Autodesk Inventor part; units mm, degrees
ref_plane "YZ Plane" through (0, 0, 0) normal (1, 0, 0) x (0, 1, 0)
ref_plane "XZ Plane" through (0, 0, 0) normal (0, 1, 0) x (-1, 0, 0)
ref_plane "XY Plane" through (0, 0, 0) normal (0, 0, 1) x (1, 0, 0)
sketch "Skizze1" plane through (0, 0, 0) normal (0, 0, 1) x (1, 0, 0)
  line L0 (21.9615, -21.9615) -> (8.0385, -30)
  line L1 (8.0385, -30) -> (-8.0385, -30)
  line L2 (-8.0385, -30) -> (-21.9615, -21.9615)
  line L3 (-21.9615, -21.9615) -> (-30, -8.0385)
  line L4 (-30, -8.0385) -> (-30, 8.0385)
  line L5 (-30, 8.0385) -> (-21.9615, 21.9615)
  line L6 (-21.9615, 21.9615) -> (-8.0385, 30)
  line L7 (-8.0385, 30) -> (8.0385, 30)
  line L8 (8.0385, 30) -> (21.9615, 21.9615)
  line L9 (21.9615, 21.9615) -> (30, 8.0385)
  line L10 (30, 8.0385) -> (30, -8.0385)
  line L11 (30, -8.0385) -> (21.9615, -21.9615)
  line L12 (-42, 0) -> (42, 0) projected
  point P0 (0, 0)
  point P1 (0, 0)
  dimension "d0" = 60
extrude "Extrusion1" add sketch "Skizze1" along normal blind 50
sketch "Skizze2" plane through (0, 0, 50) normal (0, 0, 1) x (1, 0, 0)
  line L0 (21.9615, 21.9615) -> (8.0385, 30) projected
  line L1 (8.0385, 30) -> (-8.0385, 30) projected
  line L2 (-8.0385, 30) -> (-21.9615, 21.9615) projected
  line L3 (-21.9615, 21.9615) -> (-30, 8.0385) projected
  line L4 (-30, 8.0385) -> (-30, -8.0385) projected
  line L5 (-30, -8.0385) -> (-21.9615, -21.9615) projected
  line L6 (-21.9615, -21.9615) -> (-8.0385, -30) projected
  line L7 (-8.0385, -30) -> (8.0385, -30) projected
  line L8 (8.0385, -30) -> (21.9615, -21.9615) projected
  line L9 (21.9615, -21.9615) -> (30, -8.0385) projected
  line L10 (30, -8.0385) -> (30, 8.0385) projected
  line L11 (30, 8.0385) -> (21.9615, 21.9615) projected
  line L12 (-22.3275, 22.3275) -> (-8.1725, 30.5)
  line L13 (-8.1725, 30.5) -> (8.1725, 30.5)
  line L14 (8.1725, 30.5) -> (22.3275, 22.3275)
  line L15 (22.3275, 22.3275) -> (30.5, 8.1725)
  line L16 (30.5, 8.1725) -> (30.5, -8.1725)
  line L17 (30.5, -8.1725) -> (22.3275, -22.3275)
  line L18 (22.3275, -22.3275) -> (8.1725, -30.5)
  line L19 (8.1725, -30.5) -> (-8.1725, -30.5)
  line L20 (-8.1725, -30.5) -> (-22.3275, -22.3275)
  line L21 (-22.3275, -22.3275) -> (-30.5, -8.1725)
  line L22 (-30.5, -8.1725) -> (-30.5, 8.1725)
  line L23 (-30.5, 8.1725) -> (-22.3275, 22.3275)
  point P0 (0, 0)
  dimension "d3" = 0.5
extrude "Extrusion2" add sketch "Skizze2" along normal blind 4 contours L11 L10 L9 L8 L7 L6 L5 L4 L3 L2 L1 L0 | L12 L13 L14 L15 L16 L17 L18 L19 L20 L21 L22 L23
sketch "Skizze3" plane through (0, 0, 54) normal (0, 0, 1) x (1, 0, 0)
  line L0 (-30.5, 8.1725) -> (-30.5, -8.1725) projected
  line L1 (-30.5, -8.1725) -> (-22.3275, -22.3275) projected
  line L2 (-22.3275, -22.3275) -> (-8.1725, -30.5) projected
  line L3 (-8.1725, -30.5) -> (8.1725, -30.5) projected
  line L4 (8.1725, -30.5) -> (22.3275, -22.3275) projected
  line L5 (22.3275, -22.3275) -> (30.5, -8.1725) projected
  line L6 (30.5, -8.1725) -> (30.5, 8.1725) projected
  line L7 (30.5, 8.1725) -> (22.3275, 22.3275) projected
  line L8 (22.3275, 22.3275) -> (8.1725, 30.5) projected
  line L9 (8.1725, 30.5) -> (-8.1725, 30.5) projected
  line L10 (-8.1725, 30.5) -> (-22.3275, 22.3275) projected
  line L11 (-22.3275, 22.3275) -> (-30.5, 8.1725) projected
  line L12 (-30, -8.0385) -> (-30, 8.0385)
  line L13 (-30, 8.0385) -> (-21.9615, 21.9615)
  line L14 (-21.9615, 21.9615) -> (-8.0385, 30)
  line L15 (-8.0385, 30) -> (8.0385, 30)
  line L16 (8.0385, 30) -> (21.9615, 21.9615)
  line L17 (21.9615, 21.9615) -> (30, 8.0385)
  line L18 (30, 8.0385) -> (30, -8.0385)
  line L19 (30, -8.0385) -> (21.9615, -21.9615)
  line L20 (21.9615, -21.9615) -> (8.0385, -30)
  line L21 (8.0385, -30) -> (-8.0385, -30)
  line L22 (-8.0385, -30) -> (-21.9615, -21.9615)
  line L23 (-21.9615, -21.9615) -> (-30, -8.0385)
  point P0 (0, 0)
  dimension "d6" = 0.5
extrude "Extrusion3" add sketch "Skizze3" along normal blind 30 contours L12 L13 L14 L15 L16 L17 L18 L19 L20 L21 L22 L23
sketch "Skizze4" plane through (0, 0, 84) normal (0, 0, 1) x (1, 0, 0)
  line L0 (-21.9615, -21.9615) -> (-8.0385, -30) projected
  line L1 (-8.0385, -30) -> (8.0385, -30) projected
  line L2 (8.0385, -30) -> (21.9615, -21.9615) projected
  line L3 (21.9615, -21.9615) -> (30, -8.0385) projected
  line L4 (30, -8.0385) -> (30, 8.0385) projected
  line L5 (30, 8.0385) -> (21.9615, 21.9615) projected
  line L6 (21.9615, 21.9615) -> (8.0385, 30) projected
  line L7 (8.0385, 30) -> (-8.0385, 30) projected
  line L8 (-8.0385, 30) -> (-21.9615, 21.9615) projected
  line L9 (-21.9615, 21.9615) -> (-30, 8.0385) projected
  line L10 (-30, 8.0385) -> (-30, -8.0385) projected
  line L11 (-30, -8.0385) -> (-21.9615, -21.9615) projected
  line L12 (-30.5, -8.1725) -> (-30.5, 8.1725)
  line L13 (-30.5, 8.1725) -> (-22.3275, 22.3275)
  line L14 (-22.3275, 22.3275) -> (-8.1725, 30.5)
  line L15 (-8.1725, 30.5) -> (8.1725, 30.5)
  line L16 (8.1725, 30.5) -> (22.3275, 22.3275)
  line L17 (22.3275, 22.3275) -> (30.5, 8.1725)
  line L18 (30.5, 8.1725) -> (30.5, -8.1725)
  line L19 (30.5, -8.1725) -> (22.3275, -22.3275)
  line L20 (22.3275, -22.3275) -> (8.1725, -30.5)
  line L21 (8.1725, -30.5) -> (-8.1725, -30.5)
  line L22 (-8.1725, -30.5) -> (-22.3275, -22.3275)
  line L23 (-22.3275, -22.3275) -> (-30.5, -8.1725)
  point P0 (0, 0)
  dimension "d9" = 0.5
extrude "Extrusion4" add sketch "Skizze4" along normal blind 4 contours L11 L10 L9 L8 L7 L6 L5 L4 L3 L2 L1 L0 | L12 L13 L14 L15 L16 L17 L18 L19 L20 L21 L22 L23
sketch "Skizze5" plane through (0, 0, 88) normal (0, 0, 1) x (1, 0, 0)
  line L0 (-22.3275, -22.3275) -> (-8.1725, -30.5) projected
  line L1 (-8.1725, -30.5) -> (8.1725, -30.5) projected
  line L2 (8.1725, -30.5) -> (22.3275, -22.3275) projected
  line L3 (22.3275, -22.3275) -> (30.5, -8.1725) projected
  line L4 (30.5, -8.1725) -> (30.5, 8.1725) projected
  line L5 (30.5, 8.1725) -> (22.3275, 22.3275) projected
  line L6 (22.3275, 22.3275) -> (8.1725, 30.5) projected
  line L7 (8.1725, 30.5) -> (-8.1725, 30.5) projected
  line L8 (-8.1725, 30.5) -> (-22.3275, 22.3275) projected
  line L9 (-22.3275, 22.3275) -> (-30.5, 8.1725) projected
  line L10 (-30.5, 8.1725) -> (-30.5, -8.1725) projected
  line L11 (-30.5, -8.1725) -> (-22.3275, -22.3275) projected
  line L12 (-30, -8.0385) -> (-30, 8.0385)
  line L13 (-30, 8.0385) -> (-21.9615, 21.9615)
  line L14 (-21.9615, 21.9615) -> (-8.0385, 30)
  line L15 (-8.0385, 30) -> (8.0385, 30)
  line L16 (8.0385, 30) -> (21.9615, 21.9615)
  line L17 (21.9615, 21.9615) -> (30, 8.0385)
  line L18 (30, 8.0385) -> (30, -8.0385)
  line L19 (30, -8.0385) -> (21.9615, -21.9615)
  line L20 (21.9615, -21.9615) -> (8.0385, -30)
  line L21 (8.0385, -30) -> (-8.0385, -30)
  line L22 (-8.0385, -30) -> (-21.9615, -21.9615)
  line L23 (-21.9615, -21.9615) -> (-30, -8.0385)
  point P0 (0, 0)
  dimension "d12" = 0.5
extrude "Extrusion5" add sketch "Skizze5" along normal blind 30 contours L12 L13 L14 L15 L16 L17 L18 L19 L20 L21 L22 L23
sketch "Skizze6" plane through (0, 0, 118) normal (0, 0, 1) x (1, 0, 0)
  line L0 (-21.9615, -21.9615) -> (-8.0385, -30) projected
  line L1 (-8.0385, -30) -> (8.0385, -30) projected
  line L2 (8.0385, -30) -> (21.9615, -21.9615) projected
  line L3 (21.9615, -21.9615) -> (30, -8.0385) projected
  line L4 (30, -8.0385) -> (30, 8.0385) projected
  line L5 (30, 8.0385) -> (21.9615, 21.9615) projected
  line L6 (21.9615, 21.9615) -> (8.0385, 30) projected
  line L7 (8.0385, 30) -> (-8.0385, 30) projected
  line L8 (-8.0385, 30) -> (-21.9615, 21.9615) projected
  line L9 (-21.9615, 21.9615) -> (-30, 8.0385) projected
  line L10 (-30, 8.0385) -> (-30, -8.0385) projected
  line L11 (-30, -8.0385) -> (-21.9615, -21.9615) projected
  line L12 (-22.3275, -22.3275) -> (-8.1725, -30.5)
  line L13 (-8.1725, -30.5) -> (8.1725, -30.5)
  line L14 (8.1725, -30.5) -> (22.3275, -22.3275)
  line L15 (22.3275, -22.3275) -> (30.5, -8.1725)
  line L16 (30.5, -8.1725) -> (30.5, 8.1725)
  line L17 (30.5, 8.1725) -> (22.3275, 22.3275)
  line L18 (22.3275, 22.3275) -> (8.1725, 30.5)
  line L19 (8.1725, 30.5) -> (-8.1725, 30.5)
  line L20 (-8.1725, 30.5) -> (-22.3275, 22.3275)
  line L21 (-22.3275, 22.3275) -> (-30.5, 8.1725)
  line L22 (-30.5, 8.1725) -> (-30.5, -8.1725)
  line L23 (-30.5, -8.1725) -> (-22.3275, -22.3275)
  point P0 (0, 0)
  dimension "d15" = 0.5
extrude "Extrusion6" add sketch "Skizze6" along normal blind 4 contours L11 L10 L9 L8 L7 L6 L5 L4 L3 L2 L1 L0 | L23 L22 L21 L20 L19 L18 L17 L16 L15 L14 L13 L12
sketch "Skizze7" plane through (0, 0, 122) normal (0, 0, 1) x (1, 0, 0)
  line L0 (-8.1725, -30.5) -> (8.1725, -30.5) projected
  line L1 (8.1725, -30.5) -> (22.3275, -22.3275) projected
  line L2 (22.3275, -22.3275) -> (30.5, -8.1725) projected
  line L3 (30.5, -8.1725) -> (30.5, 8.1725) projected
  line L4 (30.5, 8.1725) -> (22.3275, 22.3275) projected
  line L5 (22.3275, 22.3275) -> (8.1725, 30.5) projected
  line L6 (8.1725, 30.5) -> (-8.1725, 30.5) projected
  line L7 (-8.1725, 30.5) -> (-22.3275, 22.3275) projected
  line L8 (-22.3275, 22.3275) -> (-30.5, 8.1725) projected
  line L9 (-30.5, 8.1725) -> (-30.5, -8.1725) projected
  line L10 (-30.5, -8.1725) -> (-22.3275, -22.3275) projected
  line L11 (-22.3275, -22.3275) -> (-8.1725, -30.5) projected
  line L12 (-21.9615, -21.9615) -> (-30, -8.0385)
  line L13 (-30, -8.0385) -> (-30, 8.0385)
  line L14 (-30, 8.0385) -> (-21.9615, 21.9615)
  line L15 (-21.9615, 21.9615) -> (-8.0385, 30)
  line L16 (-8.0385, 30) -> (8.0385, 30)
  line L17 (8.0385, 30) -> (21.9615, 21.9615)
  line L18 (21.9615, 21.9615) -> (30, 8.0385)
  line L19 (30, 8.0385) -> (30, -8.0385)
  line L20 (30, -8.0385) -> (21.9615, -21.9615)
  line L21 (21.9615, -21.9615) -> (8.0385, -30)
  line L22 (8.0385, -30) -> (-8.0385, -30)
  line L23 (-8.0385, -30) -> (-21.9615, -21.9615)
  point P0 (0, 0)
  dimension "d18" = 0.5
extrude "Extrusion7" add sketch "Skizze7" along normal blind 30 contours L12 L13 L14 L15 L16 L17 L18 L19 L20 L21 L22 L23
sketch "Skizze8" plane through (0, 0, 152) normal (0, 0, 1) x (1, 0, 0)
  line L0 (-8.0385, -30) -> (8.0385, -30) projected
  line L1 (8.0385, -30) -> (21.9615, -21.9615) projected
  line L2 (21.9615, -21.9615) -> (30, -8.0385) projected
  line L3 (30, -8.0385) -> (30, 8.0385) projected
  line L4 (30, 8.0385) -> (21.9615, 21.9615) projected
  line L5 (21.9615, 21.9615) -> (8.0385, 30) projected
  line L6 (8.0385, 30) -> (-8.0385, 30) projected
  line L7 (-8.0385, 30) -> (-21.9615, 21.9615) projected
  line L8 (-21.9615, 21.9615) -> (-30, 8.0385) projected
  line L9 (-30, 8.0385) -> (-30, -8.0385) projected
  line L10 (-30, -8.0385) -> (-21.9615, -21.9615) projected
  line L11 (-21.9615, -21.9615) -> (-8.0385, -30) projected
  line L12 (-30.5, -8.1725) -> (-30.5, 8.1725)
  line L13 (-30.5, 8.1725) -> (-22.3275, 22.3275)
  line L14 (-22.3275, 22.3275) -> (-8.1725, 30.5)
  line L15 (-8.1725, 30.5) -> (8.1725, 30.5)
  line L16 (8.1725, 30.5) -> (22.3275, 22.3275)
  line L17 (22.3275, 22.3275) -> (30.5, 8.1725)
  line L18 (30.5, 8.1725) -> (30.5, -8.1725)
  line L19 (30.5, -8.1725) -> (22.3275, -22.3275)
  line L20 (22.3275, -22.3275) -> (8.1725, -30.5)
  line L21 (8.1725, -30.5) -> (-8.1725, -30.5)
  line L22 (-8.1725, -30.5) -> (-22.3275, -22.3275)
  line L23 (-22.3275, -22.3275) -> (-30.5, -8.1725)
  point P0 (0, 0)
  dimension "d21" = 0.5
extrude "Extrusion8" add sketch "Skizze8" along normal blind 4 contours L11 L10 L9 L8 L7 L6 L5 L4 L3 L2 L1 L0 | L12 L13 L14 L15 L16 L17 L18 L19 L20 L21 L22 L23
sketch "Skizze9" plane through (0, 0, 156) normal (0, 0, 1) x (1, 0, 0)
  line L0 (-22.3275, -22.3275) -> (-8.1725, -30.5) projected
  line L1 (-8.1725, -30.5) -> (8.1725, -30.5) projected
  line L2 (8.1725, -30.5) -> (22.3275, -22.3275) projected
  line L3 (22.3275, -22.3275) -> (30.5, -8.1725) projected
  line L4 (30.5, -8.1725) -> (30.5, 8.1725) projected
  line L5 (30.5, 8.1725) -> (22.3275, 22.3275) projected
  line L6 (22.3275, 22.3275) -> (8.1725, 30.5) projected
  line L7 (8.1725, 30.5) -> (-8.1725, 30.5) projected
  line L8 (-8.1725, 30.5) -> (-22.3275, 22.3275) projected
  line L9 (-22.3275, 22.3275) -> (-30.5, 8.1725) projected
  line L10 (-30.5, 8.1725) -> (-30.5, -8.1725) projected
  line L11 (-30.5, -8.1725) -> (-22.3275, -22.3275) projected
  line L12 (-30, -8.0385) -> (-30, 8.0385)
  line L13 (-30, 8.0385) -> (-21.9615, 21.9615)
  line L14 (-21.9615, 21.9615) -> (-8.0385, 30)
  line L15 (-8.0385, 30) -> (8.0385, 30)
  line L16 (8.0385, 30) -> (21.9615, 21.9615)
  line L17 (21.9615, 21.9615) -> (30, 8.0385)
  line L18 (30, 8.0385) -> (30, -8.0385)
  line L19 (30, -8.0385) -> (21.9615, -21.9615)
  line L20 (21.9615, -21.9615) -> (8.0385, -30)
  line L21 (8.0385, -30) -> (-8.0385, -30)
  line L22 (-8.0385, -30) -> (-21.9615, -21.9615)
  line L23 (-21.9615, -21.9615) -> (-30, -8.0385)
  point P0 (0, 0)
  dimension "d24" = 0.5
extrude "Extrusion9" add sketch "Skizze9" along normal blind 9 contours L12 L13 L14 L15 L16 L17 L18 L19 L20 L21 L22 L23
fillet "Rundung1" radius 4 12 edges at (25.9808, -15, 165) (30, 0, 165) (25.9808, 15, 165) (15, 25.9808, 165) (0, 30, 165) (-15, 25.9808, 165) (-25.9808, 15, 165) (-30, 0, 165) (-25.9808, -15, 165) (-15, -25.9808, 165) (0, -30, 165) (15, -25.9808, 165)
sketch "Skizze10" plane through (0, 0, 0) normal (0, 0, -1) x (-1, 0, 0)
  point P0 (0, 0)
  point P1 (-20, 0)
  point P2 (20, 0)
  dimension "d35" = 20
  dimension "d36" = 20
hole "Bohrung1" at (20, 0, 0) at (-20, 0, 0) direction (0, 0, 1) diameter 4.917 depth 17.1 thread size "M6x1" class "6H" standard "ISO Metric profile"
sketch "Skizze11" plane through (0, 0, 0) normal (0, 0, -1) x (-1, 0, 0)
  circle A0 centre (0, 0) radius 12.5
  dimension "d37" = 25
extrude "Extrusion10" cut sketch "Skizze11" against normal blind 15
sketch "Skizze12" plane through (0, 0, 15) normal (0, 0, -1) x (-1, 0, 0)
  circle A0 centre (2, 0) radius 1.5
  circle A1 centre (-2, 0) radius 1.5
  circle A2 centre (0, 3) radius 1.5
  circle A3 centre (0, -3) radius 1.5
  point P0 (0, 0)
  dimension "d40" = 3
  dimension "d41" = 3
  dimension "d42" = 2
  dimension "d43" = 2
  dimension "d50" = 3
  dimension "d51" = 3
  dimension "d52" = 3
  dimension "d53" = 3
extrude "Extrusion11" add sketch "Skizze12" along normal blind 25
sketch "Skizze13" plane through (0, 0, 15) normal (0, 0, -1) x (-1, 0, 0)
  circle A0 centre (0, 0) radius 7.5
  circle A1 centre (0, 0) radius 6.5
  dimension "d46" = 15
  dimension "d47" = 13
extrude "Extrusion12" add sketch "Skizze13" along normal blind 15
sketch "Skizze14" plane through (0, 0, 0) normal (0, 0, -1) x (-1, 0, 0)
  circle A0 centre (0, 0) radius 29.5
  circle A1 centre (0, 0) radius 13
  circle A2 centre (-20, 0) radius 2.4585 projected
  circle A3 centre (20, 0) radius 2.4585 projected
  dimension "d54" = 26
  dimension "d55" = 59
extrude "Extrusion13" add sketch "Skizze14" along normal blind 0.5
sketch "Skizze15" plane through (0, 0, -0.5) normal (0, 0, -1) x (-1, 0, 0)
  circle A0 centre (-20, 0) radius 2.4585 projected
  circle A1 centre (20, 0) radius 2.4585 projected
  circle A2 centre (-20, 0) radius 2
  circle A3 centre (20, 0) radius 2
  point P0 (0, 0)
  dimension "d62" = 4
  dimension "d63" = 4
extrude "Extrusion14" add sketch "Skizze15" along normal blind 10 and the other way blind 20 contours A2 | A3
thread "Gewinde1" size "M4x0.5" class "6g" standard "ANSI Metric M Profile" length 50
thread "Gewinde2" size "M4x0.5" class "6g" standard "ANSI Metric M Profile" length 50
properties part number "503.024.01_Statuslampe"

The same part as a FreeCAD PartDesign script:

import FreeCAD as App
import Part
import Sketcher

V = App.Vector
Q = App.Units.Quantity


def edges_at(feature, points):
    """Names of the edges that pass closest to the given points."""
    edges = feature.Shape.Edges
    near = lambda p: min(range(len(edges)), key=lambda i: edges[i].distToShape(Part.Vertex(*p))[0])
    return sorted({f"Edge{near(p) + 1}" for p in points})


def add_polygon(sketch, points):
    """Adds a closed chain of lines whose ends are joined by coincident constraints."""
    first, n = sketch.GeometryCount, len(points)
    for a, b in zip(points, points[1:] + points[:1]):
        sketch.addGeometry(Part.LineSegment(App.Vector(*a, 0), App.Vector(*b, 0)), False)
    for i in range(n):
        sketch.addConstraint(Sketcher.Constraint("Coincident", first + i, 2, first + (i + 1) % n, 1))

doc = App.newDocument("Part")
params = doc.addObject("Spreadsheet::Sheet", "Params")
for row, (alias, value) in enumerate([
    ("pad1_length", "50 mm"),
    ("pad2_length", "4 mm"),
    ("pad3_length", "30 mm"),
    ("pad4_length", "4 mm"),
    ("pad5_length", "30 mm"),
    ("pad6_length", "4 mm"),
    ("pad7_length", "30 mm"),
    ("pad8_length", "4 mm"),
    ("pad9_length", "9 mm"),
    ("fillet_radius", "4 mm"),
    ("hole_diameter", "4.917 mm"),
    ("hole_depth", "17.1 mm"),
    ("sketch11_diameter", "25 mm"),
    ("pocket1_length", "15 mm"),
    ("sketch12_diameter", "3 mm"),
    ("pad10_length", "25 mm"),
    ("sketch13_diameter", "15 mm"),
    ("sketch13_diameter2", "13 mm"),
    ("pad11_length", "15 mm"),
    ("sketch14_diameter", "59 mm"),
    ("sketch14_diameter2", "26 mm"),
    ("pad12_length", "0.5 mm"),
    ("sketch15_diameter", "4 mm"),
    ("pad13_length", "10 mm"),
    ("pad13_length2", "20 mm"),
], start=1):
    params.set(f"A{row}", alias)
    params.set(f"B{row}", "=" + value)
    params.setAlias(f"B{row}", alias)

body = doc.addObject("PartDesign::Body", "Body")

# Sketch on XY plane
sketch1 = body.newObject("Sketcher::SketchObject", "Sketch")
sketch1.AttachmentSupport = (doc.getObject("XY_Plane"), [""])
sketch1.MapMode = "FlatFace"
add_polygon(sketch1, [(8, -30), (22, -22), (30, -8), (30, 8), (22, 22), (8, 30), (-8, 30), (-22, 22), (-30, 8), (-30, -8), (-22, -22), (-8, -30)])  # lines 0-11
sketch1.addConstraint(Sketcher.Constraint("Vertical", 2))
sketch1.addConstraint(Sketcher.Constraint("Horizontal", 5))
sketch1.addConstraint(Sketcher.Constraint("Vertical", 8))
sketch1.addConstraint(Sketcher.Constraint("Horizontal", 11))
sketch1.addConstraint(Sketcher.Constraint("Symmetric", 0, 2, 6, 2, -1, 1))
sketch1.addConstraint(Sketcher.Constraint("Symmetric", 1, 2, 7, 2, -1, 1))
sketch1.addConstraint(Sketcher.Constraint("Symmetric", 3, 2, 9, 2, -1, 1))
sketch1.addConstraint(Sketcher.Constraint("Symmetric", 4, 2, 10, 2, -1, 1))
sketch1.addConstraint(Sketcher.Constraint("Symmetric", 3, 2, 6, 2, -2))
sketch1.addConstraint(Sketcher.Constraint("Perpendicular", 0, 3))
sketch1.addConstraint(Sketcher.Constraint("Perpendicular", 1, 4))
sketch1.addConstraint(Sketcher.Constraint("Perpendicular", 3, 6))
sketch1.addConstraint(Sketcher.Constraint("Perpendicular", 6, 9))
sketch1.addConstraint(Sketcher.Constraint("Horizontal", 2, 2, 7, 2))
sketch1.addConstraint(Sketcher.Constraint("Equal", 11, 2))
sketch1.addConstraint(Sketcher.Constraint("Equal", 0, 1))
sketch1.addConstraint(Sketcher.Constraint("Angle", 1, Q("59.9998 deg")))
sketch1.addConstraint(Sketcher.Constraint("DistanceX", -1, 1, 1, 2, Q("30 mm")))
sketch1.addConstraint(Sketcher.Constraint("DistanceY", 0, 2, 2, 2, Q("30 mm")))
pad1 = body.newObject("PartDesign::Pad", "Pad")
pad1.Profile = sketch1
pad1.setExpression("Length", "Params.pad1_length")

# Sketch on XY plane
sketch2 = body.newObject("Sketcher::SketchObject", "Sketch001")
sketch2.AttachmentSupport = (doc.getObject("XY_Plane"), [""])
sketch2.MapMode = "FlatFace"
sketch2.AttachmentOffset = App.Placement(V(0, 0, 50), App.Rotation())
add_polygon(sketch2, [(-8, 30), (-22, 22), (-30, 8), (-30, -8), (-22, -22), (-8, -30), (8, -30), (22, -22), (30, -8), (30, 8), (22, 22), (8, 30)])  # lines 0-11
sketch2.addConstraint(Sketcher.Constraint("Vertical", 2))
sketch2.addConstraint(Sketcher.Constraint("Horizontal", 5))
sketch2.addConstraint(Sketcher.Constraint("Vertical", 8))
sketch2.addConstraint(Sketcher.Constraint("Horizontal", 11))
sketch2.addConstraint(Sketcher.Constraint("Symmetric", 0, 2, 6, 2, -1, 1))
sketch2.addConstraint(Sketcher.Constraint("Symmetric", 1, 2, 7, 2, -1, 1))
sketch2.addConstraint(Sketcher.Constraint("Symmetric", 3, 2, 9, 2, -1, 1))
sketch2.addConstraint(Sketcher.Constraint("Symmetric", 4, 2, 10, 2, -1, 1))
sketch2.addConstraint(Sketcher.Constraint("Symmetric", 3, 2, 6, 2, -2))
sketch2.addConstraint(Sketcher.Constraint("Perpendicular", 0, 3))
sketch2.addConstraint(Sketcher.Constraint("Perpendicular", 1, 4))
sketch2.addConstraint(Sketcher.Constraint("Perpendicular", 3, 6))
sketch2.addConstraint(Sketcher.Constraint("Perpendicular", 6, 9))
sketch2.addConstraint(Sketcher.Constraint("Horizontal", 2, 2, 7, 2))
sketch2.addConstraint(Sketcher.Constraint("Equal", 11, 2))
sketch2.addConstraint(Sketcher.Constraint("Equal", 0, 1))
sketch2.addConstraint(Sketcher.Constraint("Angle", 0, Q("-149.9997 deg")))
sketch2.addConstraint(Sketcher.Constraint("DistanceX", 1, 2, -1, 1, Q("30.5 mm")))
sketch2.addConstraint(Sketcher.Constraint("DistanceY", 2, 2, 0, 2, Q("30.5 mm")))
pad2 = body.newObject("PartDesign::Pad", "Pad001")
pad2.Profile = sketch2
pad2.setExpression("Length", "Params.pad2_length")

# Sketch on XY plane
sketch3 = body.newObject("Sketcher::SketchObject", "Sketch002")
sketch3.AttachmentSupport = (doc.getObject("XY_Plane"), [""])
sketch3.MapMode = "FlatFace"
sketch3.AttachmentOffset = App.Placement(V(0, 0, 54), App.Rotation())
add_polygon(sketch3, [(-30, 8), (-30, -8), (-22, -22), (-8, -30), (8, -30), (22, -22), (30, -8), (30, 8), (22, 22), (8, 30), (-8, 30), (-22, 22)])  # lines 0-11
sketch3.addConstraint(Sketcher.Constraint("Vertical", 0))
sketch3.addConstraint(Sketcher.Constraint("Horizontal", 3))
sketch3.addConstraint(Sketcher.Constraint("Vertical", 6))
sketch3.addConstraint(Sketcher.Constraint("Horizontal", 9))
sketch3.addConstraint(Sketcher.Constraint("Symmetric", 0, 2, 6, 2, -1, 1))
sketch3.addConstraint(Sketcher.Constraint("Symmetric", 1, 2, 7, 2, -1, 1))
sketch3.addConstraint(Sketcher.Constraint("Symmetric", 2, 2, 8, 2, -1, 1))
sketch3.addConstraint(Sketcher.Constraint("Symmetric", 4, 2, 10, 2, -1, 1))
sketch3.addConstraint(Sketcher.Constraint("Symmetric", 1, 2, 4, 2, -2))
sketch3.addConstraint(Sketcher.Constraint("Perpendicular", 1, 4))
sketch3.addConstraint(Sketcher.Constraint("Perpendicular", 2, 5))
sketch3.addConstraint(Sketcher.Constraint("Perpendicular", 7, 10))
sketch3.addConstraint(Sketcher.Constraint("Perpendicular", 8, 11))
sketch3.addConstraint(Sketcher.Constraint("Horizontal", 0, 2, 5, 2))
sketch3.addConstraint(Sketcher.Constraint("Equal", 9, 0))
sketch3.addConstraint(Sketcher.Constraint("Equal", 1, 2))
sketch3.addConstraint(Sketcher.Constraint("Angle", 1, Q("-59.9998 deg")))
sketch3.addConstraint(Sketcher.Constraint("DistanceX", 0, 2, -1, 1, Q("30 mm")))
sketch3.addConstraint(Sketcher.Constraint("DistanceX", 1, 2, 3, 2, Q("30 mm")))
pad3 = body.newObject("PartDesign::Pad", "Pad002")
pad3.Profile = sketch3
pad3.setExpression("Length", "Params.pad3_length")

# Sketch on XY plane
sketch4 = body.newObject("Sketcher::SketchObject", "Sketch003")
sketch4.AttachmentSupport = (doc.getObject("XY_Plane"), [""])
sketch4.MapMode = "FlatFace"
sketch4.AttachmentOffset = App.Placement(V(0, 0, 84), App.Rotation())
add_polygon(sketch4, [(-30, 8), (-30, -8), (-22, -22), (-8, -30), (8, -30), (22, -22), (30, -8), (30, 8), (22, 22), (8, 30), (-8, 30), (-22, 22)])  # lines 0-11
sketch4.addConstraint(Sketcher.Constraint("Vertical", 0))
sketch4.addConstraint(Sketcher.Constraint("Horizontal", 3))
sketch4.addConstraint(Sketcher.Constraint("Vertical", 6))
sketch4.addConstraint(Sketcher.Constraint("Horizontal", 9))
sketch4.addConstraint(Sketcher.Constraint("Symmetric", 0, 2, 6, 2, -1, 1))
sketch4.addConstraint(Sketcher.Constraint("Symmetric", 1, 2, 7, 2, -1, 1))
sketch4.addConstraint(Sketcher.Constraint("Symmetric", 2, 2, 8, 2, -1, 1))
sketch4.addConstraint(Sketcher.Constraint("Symmetric", 4, 2, 10, 2, -1, 1))
sketch4.addConstraint(Sketcher.Constraint("Symmetric", 1, 2, 4, 2, -2))
sketch4.addConstraint(Sketcher.Constraint("Perpendicular", 1, 4))
sketch4.addConstraint(Sketcher.Constraint("Perpendicular", 2, 5))
sketch4.addConstraint(Sketcher.Constraint("Perpendicular", 7, 10))
sketch4.addConstraint(Sketcher.Constraint("Perpendicular", 8, 11))
sketch4.addConstraint(Sketcher.Constraint("Horizontal", 0, 2, 5, 2))
sketch4.addConstraint(Sketcher.Constraint("Equal", 9, 0))
sketch4.addConstraint(Sketcher.Constraint("Equal", 1, 2))
sketch4.addConstraint(Sketcher.Constraint("Angle", 1, Q("-59.9997 deg")))
sketch4.addConstraint(Sketcher.Constraint("DistanceX", 0, 2, 5, 2, Q("61 mm")))
sketch4.addConstraint(Sketcher.Constraint("DistanceX", 1, 2, 3, 2, Q("30.5 mm")))
pad4 = body.newObject("PartDesign::Pad", "Pad003")
pad4.Profile = sketch4
pad4.setExpression("Length", "Params.pad4_length")

# Sketch on XY plane
sketch5 = body.newObject("Sketcher::SketchObject", "Sketch004")
sketch5.AttachmentSupport = (doc.getObject("XY_Plane"), [""])
sketch5.MapMode = "FlatFace"
sketch5.AttachmentOffset = App.Placement(V(0, 0, 88), App.Rotation())
add_polygon(sketch5, [(-30, 8), (-30, -8), (-22, -22), (-8, -30), (8, -30), (22, -22), (30, -8), (30, 8), (22, 22), (8, 30), (-8, 30), (-22, 22)])  # lines 0-11
sketch5.addConstraint(Sketcher.Constraint("Vertical", 0))
sketch5.addConstraint(Sketcher.Constraint("Horizontal", 3))
sketch5.addConstraint(Sketcher.Constraint("Vertical", 6))
sketch5.addConstraint(Sketcher.Constraint("Horizontal", 9))
sketch5.addConstraint(Sketcher.Constraint("Symmetric", 0, 2, 6, 2, -1, 1))
sketch5.addConstraint(Sketcher.Constraint("Symmetric", 1, 2, 7, 2, -1, 1))
sketch5.addConstraint(Sketcher.Constraint("Symmetric", 2, 2, 8, 2, -1, 1))
sketch5.addConstraint(Sketcher.Constraint("Symmetric", 4, 2, 10, 2, -1, 1))
sketch5.addConstraint(Sketcher.Constraint("Symmetric", 1, 2, 4, 2, -2))
sketch5.addConstraint(Sketcher.Constraint("Perpendicular", 1, 4))
sketch5.addConstraint(Sketcher.Constraint("Perpendicular", 2, 5))
sketch5.addConstraint(Sketcher.Constraint("Perpendicular", 7, 10))
sketch5.addConstraint(Sketcher.Constraint("Perpendicular", 8, 11))
sketch5.addConstraint(Sketcher.Constraint("Horizontal", 0, 2, 5, 2))
sketch5.addConstraint(Sketcher.Constraint("Equal", 9, 0))
sketch5.addConstraint(Sketcher.Constraint("Equal", 1, 2))
sketch5.addConstraint(Sketcher.Constraint("Angle", 1, Q("-59.9998 deg")))
sketch5.addConstraint(Sketcher.Constraint("DistanceX", 0, 2, -1, 1, Q("30 mm")))
sketch5.addConstraint(Sketcher.Constraint("DistanceX", 1, 2, 3, 2, Q("30 mm")))
pad5 = body.newObject("PartDesign::Pad", "Pad004")
pad5.Profile = sketch5
pad5.setExpression("Length", "Params.pad5_length")

# Sketch on XY plane
sketch6 = body.newObject("Sketcher::SketchObject", "Sketch005")
sketch6.AttachmentSupport = (doc.getObject("XY_Plane"), [""])
sketch6.MapMode = "FlatFace"
sketch6.AttachmentOffset = App.Placement(V(0, 0, 118), App.Rotation())
add_polygon(sketch6, [(-30, -8), (-22, -22), (-8, -30), (8, -30), (22, -22), (30, -8), (30, 8), (22, 22), (8, 30), (-8, 30), (-22, 22), (-30, 8)])  # lines 0-11
sketch6.addConstraint(Sketcher.Constraint("Horizontal", 2))
sketch6.addConstraint(Sketcher.Constraint("Vertical", 5))
sketch6.addConstraint(Sketcher.Constraint("Horizontal", 8))
sketch6.addConstraint(Sketcher.Constraint("Vertical", 11))
sketch6.addConstraint(Sketcher.Constraint("Symmetric", 0, 2, 6, 2, -1, 1))
sketch6.addConstraint(Sketcher.Constraint("Symmetric", 1, 2, 7, 2, -1, 1))
sketch6.addConstraint(Sketcher.Constraint("Symmetric", 3, 2, 9, 2, -1, 1))
sketch6.addConstraint(Sketcher.Constraint("Symmetric", 4, 2, 10, 2, -1, 1))
sketch6.addConstraint(Sketcher.Constraint("Symmetric", 0, 2, 3, 2, -2))
sketch6.addConstraint(Sketcher.Constraint("Perpendicular", 0, 3))
sketch6.addConstraint(Sketcher.Constraint("Perpendicular", 1, 4))
sketch6.addConstraint(Sketcher.Constraint("Perpendicular", 3, 6))
sketch6.addConstraint(Sketcher.Constraint("Perpendicular", 6, 9))
sketch6.addConstraint(Sketcher.Constraint("Horizontal", 5, 2, 10, 2))
sketch6.addConstraint(Sketcher.Constraint("Equal", 8, 5))
sketch6.addConstraint(Sketcher.Constraint("Equal", 0, 1))
sketch6.addConstraint(Sketcher.Constraint("Angle", 0, Q("-59.9997 deg")))
sketch6.addConstraint(Sketcher.Constraint("DistanceY", 1, 2, -1, 1, Q("30.5 mm")))
sketch6.addConstraint(Sketcher.Constraint("DistanceX", 0, 2, 2, 2, Q("30.5 mm")))
pad6 = body.newObject("PartDesign::Pad", "Pad005")
pad6.Profile = sketch6
pad6.setExpression("Length", "Params.pad6_length")

# Sketch on XY plane
sketch7 = body.newObject("Sketcher::SketchObject", "Sketch006")
sketch7.AttachmentSupport = (doc.getObject("XY_Plane"), [""])
sketch7.MapMode = "FlatFace"
sketch7.AttachmentOffset = App.Placement(V(0, 0, 122), App.Rotation())
add_polygon(sketch7, [(-30, -8), (-22, -22), (-8, -30), (8, -30), (22, -22), (30, -8), (30, 8), (22, 22), (8, 30), (-8, 30), (-22, 22), (-30, 8)])  # lines 0-11
sketch7.addConstraint(Sketcher.Constraint("Horizontal", 2))
sketch7.addConstraint(Sketcher.Constraint("Vertical", 5))
sketch7.addConstraint(Sketcher.Constraint("Horizontal", 8))
sketch7.addConstraint(Sketcher.Constraint("Vertical", 11))
sketch7.addConstraint(Sketcher.Constraint("Symmetric", 0, 2, 6, 2, -1, 1))
sketch7.addConstraint(Sketcher.Constraint("Symmetric", 1, 2, 7, 2, -1, 1))
sketch7.addConstraint(Sketcher.Constraint("Symmetric", 3, 2, 9, 2, -1, 1))
sketch7.addConstraint(Sketcher.Constraint("Symmetric", 4, 2, 10, 2, -1, 1))
sketch7.addConstraint(Sketcher.Constraint("Symmetric", 0, 2, 3, 2, -2))
sketch7.addConstraint(Sketcher.Constraint("Perpendicular", 0, 3))
sketch7.addConstraint(Sketcher.Constraint("Perpendicular", 1, 4))
sketch7.addConstraint(Sketcher.Constraint("Perpendicular", 3, 6))
sketch7.addConstraint(Sketcher.Constraint("Perpendicular", 6, 9))
sketch7.addConstraint(Sketcher.Constraint("Horizontal", 5, 2, 10, 2))
sketch7.addConstraint(Sketcher.Constraint("Equal", 8, 5))
sketch7.addConstraint(Sketcher.Constraint("Equal", 0, 1))
sketch7.addConstraint(Sketcher.Constraint("Angle", 0, Q("-59.9998 deg")))
sketch7.addConstraint(Sketcher.Constraint("DistanceY", 1, 2, -1, 1, Q("30 mm")))
sketch7.addConstraint(Sketcher.Constraint("DistanceX", 0, 2, 2, 2, Q("30 mm")))
pad7 = body.newObject("PartDesign::Pad", "Pad006")
pad7.Profile = sketch7
pad7.setExpression("Length", "Params.pad7_length")

# Sketch on XY plane
sketch8 = body.newObject("Sketcher::SketchObject", "Sketch007")
sketch8.AttachmentSupport = (doc.getObject("XY_Plane"), [""])
sketch8.MapMode = "FlatFace"
sketch8.AttachmentOffset = App.Placement(V(0, 0, 152), App.Rotation())
add_polygon(sketch8, [(-30, 8), (-30, -8), (-22, -22), (-8, -30), (8, -30), (22, -22), (30, -8), (30, 8), (22, 22), (8, 30), (-8, 30), (-22, 22)])  # lines 0-11
sketch8.addConstraint(Sketcher.Constraint("Vertical", 0))
sketch8.addConstraint(Sketcher.Constraint("Horizontal", 3))
sketch8.addConstraint(Sketcher.Constraint("Vertical", 6))
sketch8.addConstraint(Sketcher.Constraint("Horizontal", 9))
sketch8.addConstraint(Sketcher.Constraint("Symmetric", 0, 2, 6, 2, -1, 1))
sketch8.addConstraint(Sketcher.Constraint("Symmetric", 1, 2, 7, 2, -1, 1))
sketch8.addConstraint(Sketcher.Constraint("Symmetric", 2, 2, 8, 2, -1, 1))
sketch8.addConstraint(Sketcher.Constraint("Symmetric", 4, 2, 10, 2, -1, 1))
sketch8.addConstraint(Sketcher.Constraint("Symmetric", 1, 2, 4, 2, -2))
sketch8.addConstraint(Sketcher.Constraint("Perpendicular", 1, 4))
sketch8.addConstraint(Sketcher.Constraint("Perpendicular", 2, 5))
sketch8.addConstraint(Sketcher.Constraint("Perpendicular", 7, 10))
sketch8.addConstraint(Sketcher.Constraint("Perpendicular", 8, 11))
sketch8.addConstraint(Sketcher.Constraint("Horizontal", 0, 2, 5, 2))
sketch8.addConstraint(Sketcher.Constraint("Equal", 9, 0))
sketch8.addConstraint(Sketcher.Constraint("Equal", 1, 2))
sketch8.addConstraint(Sketcher.Constraint("Angle", 1, Q("-59.9997 deg")))
sketch8.addConstraint(Sketcher.Constraint("DistanceX", 0, 2, 5, 2, Q("61 mm")))
sketch8.addConstraint(Sketcher.Constraint("DistanceX", 1, 2, 3, 2, Q("30.5 mm")))
pad8 = body.newObject("PartDesign::Pad", "Pad007")
pad8.Profile = sketch8
pad8.setExpression("Length", "Params.pad8_length")

# Sketch on XY plane
sketch9 = body.newObject("Sketcher::SketchObject", "Sketch008")
sketch9.AttachmentSupport = (doc.getObject("XY_Plane"), [""])
sketch9.MapMode = "FlatFace"
sketch9.AttachmentOffset = App.Placement(V(0, 0, 156), App.Rotation())
add_polygon(sketch9, [(-30, 8), (-30, -8), (-22, -22), (-8, -30), (8, -30), (22, -22), (30, -8), (30, 8), (22, 22), (8, 30), (-8, 30), (-22, 22)])  # lines 0-11
sketch9.addConstraint(Sketcher.Constraint("Vertical", 0))
sketch9.addConstraint(Sketcher.Constraint("Horizontal", 3))
sketch9.addConstraint(Sketcher.Constraint("Vertical", 6))
sketch9.addConstraint(Sketcher.Constraint("Horizontal", 9))
sketch9.addConstraint(Sketcher.Constraint("Symmetric", 0, 2, 6, 2, -1, 1))
sketch9.addConstraint(Sketcher.Constraint("Symmetric", 1, 2, 7, 2, -1, 1))
sketch9.addConstraint(Sketcher.Constraint("Symmetric", 2, 2, 8, 2, -1, 1))
sketch9.addConstraint(Sketcher.Constraint("Symmetric", 4, 2, 10, 2, -1, 1))
sketch9.addConstraint(Sketcher.Constraint("Symmetric", 1, 2, 4, 2, -2))
sketch9.addConstraint(Sketcher.Constraint("Perpendicular", 1, 4))
sketch9.addConstraint(Sketcher.Constraint("Perpendicular", 2, 5))
sketch9.addConstraint(Sketcher.Constraint("Perpendicular", 7, 10))
sketch9.addConstraint(Sketcher.Constraint("Perpendicular", 8, 11))
sketch9.addConstraint(Sketcher.Constraint("Horizontal", 0, 2, 5, 2))
sketch9.addConstraint(Sketcher.Constraint("Equal", 9, 0))
sketch9.addConstraint(Sketcher.Constraint("Equal", 1, 2))
sketch9.addConstraint(Sketcher.Constraint("Angle", 1, Q("-59.9998 deg")))
sketch9.addConstraint(Sketcher.Constraint("DistanceX", 0, 2, -1, 1, Q("30 mm")))
sketch9.addConstraint(Sketcher.Constraint("DistanceX", 1, 2, 3, 2, Q("30 mm")))
pad9 = body.newObject("PartDesign::Pad", "Pad008")
pad9.Profile = sketch9
pad9.setExpression("Length", "Params.pad9_length")
doc.recompute()

fillet = body.newObject("PartDesign::Fillet", "Fillet")
fillet.Base = (pad9, edges_at(pad9, [
    (25.981, -15, 165),
    (30, 0, 165),
    (25.981, 15, 165),
    (15, 25.981, 165),
    (0, 30, 165),
    (-15, 25.981, 165),
    (-25.981, 15, 165),
    (-30, 0, 165),
    (-25.981, -15, 165),
    (-15, -25.981, 165),
    (0, -30, 165),
    (15, -25.981, 165),
]))
fillet.setExpression("Radius", "Params.fillet_radius")

# Sketch on XY plane
sketch10 = body.newObject("Sketcher::SketchObject", "Sketch009")
sketch10.AttachmentSupport = (doc.getObject("XY_Plane"), [""])
sketch10.MapMode = "FlatFace"
sketch10.addGeometry(Part.Circle(V(20, 0, 0), V(0, 0, 1), 2.5), False)
sketch10.addGeometry(Part.Circle(V(-20, 0, 0), V(0, 0, 1), 2.5), False)
sketch10.addConstraint(Sketcher.Constraint("Equal", 0, 1))
sketch10.addConstraint(Sketcher.Constraint("Symmetric", 0, 3, 1, 3, -1, 1))
sketch10.addConstraint(Sketcher.Constraint("PointOnObject", 0, 3, -1))
sketch10.addConstraint(Sketcher.Constraint("Diameter", 0, Q("4.917 mm")))
sketch10.addConstraint(Sketcher.Constraint("DistanceX", -1, 1, 0, 3, Q("20 mm")))
doc.recompute()
hole = body.newObject("PartDesign::Hole", "Hole")
hole.Profile = sketch10
hole.ThreadType = "None"
hole.setExpression("Diameter", "Params.hole_diameter")
hole.DepthType = "Dimension"
hole.setExpression("Depth", "Params.hole_depth")
hole.DrillPoint = "Flat"
hole.Reversed = True

# Sketch on XY plane
sketch11 = body.newObject("Sketcher::SketchObject", "Sketch010")
sketch11.AttachmentSupport = (doc.getObject("XY_Plane"), [""])
sketch11.MapMode = "FlatFace"
sketch11.addGeometry(Part.Circle(V(0, 0, 0), V(0, 0, 1), 12), False)
sketch11.addConstraint(Sketcher.Constraint("Coincident", 0, 3, -1, 1))
sketch11.addConstraint(Sketcher.Constraint("Diameter", 0, Q("25 mm")))
sketch11.setExpression("Constraints[1]", "Params.sketch11_diameter")
pocket1 = body.newObject("PartDesign::Pocket", "Pocket")
pocket1.Profile = sketch11
pocket1.setExpression("Length", "Params.pocket1_length")
pocket1.Reversed = True

# Sketch on XY plane
sketch12 = body.newObject("Sketcher::SketchObject", "Sketch011")
sketch12.AttachmentSupport = (doc.getObject("XY_Plane"), [""])
sketch12.MapMode = "FlatFace"
sketch12.AttachmentOffset = App.Placement(V(0, 0, 15), App.Rotation())
sketch12.addGeometry(Part.Circle(V(-2, 0, 0), V(0, 0, 1), 1.5), False)
sketch12.addGeometry(Part.Circle(V(2, 0, 0), V(0, 0, 1), 1.5), False)
sketch12.addGeometry(Part.Circle(V(0, 3, 0), V(0, 0, 1), 1.5), False)
sketch12.addGeometry(Part.Circle(V(0, -3, 0), V(0, 0, 1), 1.5), False)
sketch12.addConstraint(Sketcher.Constraint("Equal", 0, 1))
sketch12.addConstraint(Sketcher.Constraint("Equal", 1, 2))
sketch12.addConstraint(Sketcher.Constraint("Equal", 2, 3))
sketch12.addConstraint(Sketcher.Constraint("Symmetric", 0, 3, 1, 3, -1, 1))
sketch12.addConstraint(Sketcher.Constraint("Symmetric", 2, 3, 3, 3, -1, 1))
sketch12.addConstraint(Sketcher.Constraint("PointOnObject", 0, 3, -1))
sketch12.addConstraint(Sketcher.Constraint("PointOnObject", 2, 3, -2))
sketch12.addConstraint(Sketcher.Constraint("Diameter", 0, Q("3 mm")))
sketch12.addConstraint(Sketcher.Constraint("DistanceX", 0, 3, -1, 1, Q("2 mm")))
sketch12.addConstraint(Sketcher.Constraint("DistanceY", -1, 1, 2, 3, Q("3 mm")))
sketch12.setExpression("Constraints[7]", "Params.sketch12_diameter")
pad10 = body.newObject("PartDesign::Pad", "Pad009")
pad10.Profile = sketch12
pad10.setExpression("Length", "Params.pad10_length")
pad10.Reversed = True

# Sketch on XY plane
sketch13 = body.newObject("Sketcher::SketchObject", "Sketch012")
sketch13.AttachmentSupport = (doc.getObject("XY_Plane"), [""])
sketch13.MapMode = "FlatFace"
sketch13.AttachmentOffset = App.Placement(V(0, 0, 15), App.Rotation())
sketch13.addGeometry(Part.Circle(V(0, 0, 0), V(0, 0, 1), 8), False)
sketch13.addGeometry(Part.Circle(V(0, 0, 0), V(0, 0, 1), 6), False)
sketch13.addConstraint(Sketcher.Constraint("Coincident", 0, 3, -1, 1))
sketch13.addConstraint(Sketcher.Constraint("Coincident", 1, 3, -1, 1))
sketch13.addConstraint(Sketcher.Constraint("Diameter", 0, Q("15 mm")))
sketch13.addConstraint(Sketcher.Constraint("Diameter", 1, Q("13 mm")))
sketch13.setExpression("Constraints[2]", "Params.sketch13_diameter")
sketch13.setExpression("Constraints[3]", "Params.sketch13_diameter2")
pad11 = body.newObject("PartDesign::Pad", "Pad010")
pad11.Profile = sketch13
pad11.setExpression("Length", "Params.pad11_length")
pad11.Reversed = True

# Sketch on XY plane
sketch14 = body.newObject("Sketcher::SketchObject", "Sketch013")
sketch14.AttachmentSupport = (doc.getObject("XY_Plane"), [""])
sketch14.MapMode = "FlatFace"
sketch14.addGeometry(Part.Circle(V(0, 0, 0), V(0, 0, 1), 29.5), False)
sketch14.addGeometry(Part.Circle(V(20, 0, 0), V(0, 0, 1), 2.5), False)
sketch14.addGeometry(Part.Circle(V(0, 0, 0), V(0, 0, 1), 13), False)
sketch14.addGeometry(Part.Circle(V(-20, 0, 0), V(0, 0, 1), 2.5), False)
sketch14.addConstraint(Sketcher.Constraint("Coincident", 0, 3, -1, 1))
sketch14.addConstraint(Sketcher.Constraint("Coincident", 2, 3, -1, 1))
sketch14.addConstraint(Sketcher.Constraint("Equal", 1, 3))
sketch14.addConstraint(Sketcher.Constraint("Symmetric", 1, 3, 3, 3, -1, 1))
sketch14.addConstraint(Sketcher.Constraint("PointOnObject", 1, 3, -1))
sketch14.addConstraint(Sketcher.Constraint("Diameter", 0, Q("59 mm")))
sketch14.addConstraint(Sketcher.Constraint("Diameter", 2, Q("26 mm")))
sketch14.addConstraint(Sketcher.Constraint("Diameter", 1, Q("4.917 mm")))
sketch14.addConstraint(Sketcher.Constraint("DistanceX", -1, 1, 1, 3, Q("20 mm")))
sketch14.setExpression("Constraints[5]", "Params.sketch14_diameter")
sketch14.setExpression("Constraints[6]", "Params.sketch14_diameter2")
pad12 = body.newObject("PartDesign::Pad", "Pad011")
pad12.Profile = sketch14
pad12.setExpression("Length", "Params.pad12_length")
pad12.Reversed = True

# Sketch on XY plane
sketch15 = body.newObject("Sketcher::SketchObject", "Sketch014")
sketch15.AttachmentSupport = (doc.getObject("XY_Plane"), [""])
sketch15.MapMode = "FlatFace"
sketch15.AttachmentOffset = App.Placement(V(0, 0, -0.5), App.Rotation())
sketch15.addGeometry(Part.Circle(V(20, 0, 0), V(0, 0, 1), 2), False)
sketch15.addGeometry(Part.Circle(V(-20, 0, 0), V(0, 0, 1), 2), False)
sketch15.addConstraint(Sketcher.Constraint("Equal", 0, 1))
sketch15.addConstraint(Sketcher.Constraint("Symmetric", 0, 3, 1, 3, -1, 1))
sketch15.addConstraint(Sketcher.Constraint("PointOnObject", 0, 3, -1))
sketch15.addConstraint(Sketcher.Constraint("Diameter", 0, Q("4 mm")))
sketch15.addConstraint(Sketcher.Constraint("DistanceX", -1, 1, 0, 3, Q("20 mm")))
sketch15.setExpression("Constraints[3]", "Params.sketch15_diameter")
pad13 = body.newObject("PartDesign::Pad", "Pad012")
pad13.Profile = sketch15
pad13.Type = "TwoLengths"
pad13.setExpression("Length", "Params.pad13_length")
pad13.setExpression("Length2", "Params.pad13_length2")
pad13.Reversed = True

doc.recompute()
